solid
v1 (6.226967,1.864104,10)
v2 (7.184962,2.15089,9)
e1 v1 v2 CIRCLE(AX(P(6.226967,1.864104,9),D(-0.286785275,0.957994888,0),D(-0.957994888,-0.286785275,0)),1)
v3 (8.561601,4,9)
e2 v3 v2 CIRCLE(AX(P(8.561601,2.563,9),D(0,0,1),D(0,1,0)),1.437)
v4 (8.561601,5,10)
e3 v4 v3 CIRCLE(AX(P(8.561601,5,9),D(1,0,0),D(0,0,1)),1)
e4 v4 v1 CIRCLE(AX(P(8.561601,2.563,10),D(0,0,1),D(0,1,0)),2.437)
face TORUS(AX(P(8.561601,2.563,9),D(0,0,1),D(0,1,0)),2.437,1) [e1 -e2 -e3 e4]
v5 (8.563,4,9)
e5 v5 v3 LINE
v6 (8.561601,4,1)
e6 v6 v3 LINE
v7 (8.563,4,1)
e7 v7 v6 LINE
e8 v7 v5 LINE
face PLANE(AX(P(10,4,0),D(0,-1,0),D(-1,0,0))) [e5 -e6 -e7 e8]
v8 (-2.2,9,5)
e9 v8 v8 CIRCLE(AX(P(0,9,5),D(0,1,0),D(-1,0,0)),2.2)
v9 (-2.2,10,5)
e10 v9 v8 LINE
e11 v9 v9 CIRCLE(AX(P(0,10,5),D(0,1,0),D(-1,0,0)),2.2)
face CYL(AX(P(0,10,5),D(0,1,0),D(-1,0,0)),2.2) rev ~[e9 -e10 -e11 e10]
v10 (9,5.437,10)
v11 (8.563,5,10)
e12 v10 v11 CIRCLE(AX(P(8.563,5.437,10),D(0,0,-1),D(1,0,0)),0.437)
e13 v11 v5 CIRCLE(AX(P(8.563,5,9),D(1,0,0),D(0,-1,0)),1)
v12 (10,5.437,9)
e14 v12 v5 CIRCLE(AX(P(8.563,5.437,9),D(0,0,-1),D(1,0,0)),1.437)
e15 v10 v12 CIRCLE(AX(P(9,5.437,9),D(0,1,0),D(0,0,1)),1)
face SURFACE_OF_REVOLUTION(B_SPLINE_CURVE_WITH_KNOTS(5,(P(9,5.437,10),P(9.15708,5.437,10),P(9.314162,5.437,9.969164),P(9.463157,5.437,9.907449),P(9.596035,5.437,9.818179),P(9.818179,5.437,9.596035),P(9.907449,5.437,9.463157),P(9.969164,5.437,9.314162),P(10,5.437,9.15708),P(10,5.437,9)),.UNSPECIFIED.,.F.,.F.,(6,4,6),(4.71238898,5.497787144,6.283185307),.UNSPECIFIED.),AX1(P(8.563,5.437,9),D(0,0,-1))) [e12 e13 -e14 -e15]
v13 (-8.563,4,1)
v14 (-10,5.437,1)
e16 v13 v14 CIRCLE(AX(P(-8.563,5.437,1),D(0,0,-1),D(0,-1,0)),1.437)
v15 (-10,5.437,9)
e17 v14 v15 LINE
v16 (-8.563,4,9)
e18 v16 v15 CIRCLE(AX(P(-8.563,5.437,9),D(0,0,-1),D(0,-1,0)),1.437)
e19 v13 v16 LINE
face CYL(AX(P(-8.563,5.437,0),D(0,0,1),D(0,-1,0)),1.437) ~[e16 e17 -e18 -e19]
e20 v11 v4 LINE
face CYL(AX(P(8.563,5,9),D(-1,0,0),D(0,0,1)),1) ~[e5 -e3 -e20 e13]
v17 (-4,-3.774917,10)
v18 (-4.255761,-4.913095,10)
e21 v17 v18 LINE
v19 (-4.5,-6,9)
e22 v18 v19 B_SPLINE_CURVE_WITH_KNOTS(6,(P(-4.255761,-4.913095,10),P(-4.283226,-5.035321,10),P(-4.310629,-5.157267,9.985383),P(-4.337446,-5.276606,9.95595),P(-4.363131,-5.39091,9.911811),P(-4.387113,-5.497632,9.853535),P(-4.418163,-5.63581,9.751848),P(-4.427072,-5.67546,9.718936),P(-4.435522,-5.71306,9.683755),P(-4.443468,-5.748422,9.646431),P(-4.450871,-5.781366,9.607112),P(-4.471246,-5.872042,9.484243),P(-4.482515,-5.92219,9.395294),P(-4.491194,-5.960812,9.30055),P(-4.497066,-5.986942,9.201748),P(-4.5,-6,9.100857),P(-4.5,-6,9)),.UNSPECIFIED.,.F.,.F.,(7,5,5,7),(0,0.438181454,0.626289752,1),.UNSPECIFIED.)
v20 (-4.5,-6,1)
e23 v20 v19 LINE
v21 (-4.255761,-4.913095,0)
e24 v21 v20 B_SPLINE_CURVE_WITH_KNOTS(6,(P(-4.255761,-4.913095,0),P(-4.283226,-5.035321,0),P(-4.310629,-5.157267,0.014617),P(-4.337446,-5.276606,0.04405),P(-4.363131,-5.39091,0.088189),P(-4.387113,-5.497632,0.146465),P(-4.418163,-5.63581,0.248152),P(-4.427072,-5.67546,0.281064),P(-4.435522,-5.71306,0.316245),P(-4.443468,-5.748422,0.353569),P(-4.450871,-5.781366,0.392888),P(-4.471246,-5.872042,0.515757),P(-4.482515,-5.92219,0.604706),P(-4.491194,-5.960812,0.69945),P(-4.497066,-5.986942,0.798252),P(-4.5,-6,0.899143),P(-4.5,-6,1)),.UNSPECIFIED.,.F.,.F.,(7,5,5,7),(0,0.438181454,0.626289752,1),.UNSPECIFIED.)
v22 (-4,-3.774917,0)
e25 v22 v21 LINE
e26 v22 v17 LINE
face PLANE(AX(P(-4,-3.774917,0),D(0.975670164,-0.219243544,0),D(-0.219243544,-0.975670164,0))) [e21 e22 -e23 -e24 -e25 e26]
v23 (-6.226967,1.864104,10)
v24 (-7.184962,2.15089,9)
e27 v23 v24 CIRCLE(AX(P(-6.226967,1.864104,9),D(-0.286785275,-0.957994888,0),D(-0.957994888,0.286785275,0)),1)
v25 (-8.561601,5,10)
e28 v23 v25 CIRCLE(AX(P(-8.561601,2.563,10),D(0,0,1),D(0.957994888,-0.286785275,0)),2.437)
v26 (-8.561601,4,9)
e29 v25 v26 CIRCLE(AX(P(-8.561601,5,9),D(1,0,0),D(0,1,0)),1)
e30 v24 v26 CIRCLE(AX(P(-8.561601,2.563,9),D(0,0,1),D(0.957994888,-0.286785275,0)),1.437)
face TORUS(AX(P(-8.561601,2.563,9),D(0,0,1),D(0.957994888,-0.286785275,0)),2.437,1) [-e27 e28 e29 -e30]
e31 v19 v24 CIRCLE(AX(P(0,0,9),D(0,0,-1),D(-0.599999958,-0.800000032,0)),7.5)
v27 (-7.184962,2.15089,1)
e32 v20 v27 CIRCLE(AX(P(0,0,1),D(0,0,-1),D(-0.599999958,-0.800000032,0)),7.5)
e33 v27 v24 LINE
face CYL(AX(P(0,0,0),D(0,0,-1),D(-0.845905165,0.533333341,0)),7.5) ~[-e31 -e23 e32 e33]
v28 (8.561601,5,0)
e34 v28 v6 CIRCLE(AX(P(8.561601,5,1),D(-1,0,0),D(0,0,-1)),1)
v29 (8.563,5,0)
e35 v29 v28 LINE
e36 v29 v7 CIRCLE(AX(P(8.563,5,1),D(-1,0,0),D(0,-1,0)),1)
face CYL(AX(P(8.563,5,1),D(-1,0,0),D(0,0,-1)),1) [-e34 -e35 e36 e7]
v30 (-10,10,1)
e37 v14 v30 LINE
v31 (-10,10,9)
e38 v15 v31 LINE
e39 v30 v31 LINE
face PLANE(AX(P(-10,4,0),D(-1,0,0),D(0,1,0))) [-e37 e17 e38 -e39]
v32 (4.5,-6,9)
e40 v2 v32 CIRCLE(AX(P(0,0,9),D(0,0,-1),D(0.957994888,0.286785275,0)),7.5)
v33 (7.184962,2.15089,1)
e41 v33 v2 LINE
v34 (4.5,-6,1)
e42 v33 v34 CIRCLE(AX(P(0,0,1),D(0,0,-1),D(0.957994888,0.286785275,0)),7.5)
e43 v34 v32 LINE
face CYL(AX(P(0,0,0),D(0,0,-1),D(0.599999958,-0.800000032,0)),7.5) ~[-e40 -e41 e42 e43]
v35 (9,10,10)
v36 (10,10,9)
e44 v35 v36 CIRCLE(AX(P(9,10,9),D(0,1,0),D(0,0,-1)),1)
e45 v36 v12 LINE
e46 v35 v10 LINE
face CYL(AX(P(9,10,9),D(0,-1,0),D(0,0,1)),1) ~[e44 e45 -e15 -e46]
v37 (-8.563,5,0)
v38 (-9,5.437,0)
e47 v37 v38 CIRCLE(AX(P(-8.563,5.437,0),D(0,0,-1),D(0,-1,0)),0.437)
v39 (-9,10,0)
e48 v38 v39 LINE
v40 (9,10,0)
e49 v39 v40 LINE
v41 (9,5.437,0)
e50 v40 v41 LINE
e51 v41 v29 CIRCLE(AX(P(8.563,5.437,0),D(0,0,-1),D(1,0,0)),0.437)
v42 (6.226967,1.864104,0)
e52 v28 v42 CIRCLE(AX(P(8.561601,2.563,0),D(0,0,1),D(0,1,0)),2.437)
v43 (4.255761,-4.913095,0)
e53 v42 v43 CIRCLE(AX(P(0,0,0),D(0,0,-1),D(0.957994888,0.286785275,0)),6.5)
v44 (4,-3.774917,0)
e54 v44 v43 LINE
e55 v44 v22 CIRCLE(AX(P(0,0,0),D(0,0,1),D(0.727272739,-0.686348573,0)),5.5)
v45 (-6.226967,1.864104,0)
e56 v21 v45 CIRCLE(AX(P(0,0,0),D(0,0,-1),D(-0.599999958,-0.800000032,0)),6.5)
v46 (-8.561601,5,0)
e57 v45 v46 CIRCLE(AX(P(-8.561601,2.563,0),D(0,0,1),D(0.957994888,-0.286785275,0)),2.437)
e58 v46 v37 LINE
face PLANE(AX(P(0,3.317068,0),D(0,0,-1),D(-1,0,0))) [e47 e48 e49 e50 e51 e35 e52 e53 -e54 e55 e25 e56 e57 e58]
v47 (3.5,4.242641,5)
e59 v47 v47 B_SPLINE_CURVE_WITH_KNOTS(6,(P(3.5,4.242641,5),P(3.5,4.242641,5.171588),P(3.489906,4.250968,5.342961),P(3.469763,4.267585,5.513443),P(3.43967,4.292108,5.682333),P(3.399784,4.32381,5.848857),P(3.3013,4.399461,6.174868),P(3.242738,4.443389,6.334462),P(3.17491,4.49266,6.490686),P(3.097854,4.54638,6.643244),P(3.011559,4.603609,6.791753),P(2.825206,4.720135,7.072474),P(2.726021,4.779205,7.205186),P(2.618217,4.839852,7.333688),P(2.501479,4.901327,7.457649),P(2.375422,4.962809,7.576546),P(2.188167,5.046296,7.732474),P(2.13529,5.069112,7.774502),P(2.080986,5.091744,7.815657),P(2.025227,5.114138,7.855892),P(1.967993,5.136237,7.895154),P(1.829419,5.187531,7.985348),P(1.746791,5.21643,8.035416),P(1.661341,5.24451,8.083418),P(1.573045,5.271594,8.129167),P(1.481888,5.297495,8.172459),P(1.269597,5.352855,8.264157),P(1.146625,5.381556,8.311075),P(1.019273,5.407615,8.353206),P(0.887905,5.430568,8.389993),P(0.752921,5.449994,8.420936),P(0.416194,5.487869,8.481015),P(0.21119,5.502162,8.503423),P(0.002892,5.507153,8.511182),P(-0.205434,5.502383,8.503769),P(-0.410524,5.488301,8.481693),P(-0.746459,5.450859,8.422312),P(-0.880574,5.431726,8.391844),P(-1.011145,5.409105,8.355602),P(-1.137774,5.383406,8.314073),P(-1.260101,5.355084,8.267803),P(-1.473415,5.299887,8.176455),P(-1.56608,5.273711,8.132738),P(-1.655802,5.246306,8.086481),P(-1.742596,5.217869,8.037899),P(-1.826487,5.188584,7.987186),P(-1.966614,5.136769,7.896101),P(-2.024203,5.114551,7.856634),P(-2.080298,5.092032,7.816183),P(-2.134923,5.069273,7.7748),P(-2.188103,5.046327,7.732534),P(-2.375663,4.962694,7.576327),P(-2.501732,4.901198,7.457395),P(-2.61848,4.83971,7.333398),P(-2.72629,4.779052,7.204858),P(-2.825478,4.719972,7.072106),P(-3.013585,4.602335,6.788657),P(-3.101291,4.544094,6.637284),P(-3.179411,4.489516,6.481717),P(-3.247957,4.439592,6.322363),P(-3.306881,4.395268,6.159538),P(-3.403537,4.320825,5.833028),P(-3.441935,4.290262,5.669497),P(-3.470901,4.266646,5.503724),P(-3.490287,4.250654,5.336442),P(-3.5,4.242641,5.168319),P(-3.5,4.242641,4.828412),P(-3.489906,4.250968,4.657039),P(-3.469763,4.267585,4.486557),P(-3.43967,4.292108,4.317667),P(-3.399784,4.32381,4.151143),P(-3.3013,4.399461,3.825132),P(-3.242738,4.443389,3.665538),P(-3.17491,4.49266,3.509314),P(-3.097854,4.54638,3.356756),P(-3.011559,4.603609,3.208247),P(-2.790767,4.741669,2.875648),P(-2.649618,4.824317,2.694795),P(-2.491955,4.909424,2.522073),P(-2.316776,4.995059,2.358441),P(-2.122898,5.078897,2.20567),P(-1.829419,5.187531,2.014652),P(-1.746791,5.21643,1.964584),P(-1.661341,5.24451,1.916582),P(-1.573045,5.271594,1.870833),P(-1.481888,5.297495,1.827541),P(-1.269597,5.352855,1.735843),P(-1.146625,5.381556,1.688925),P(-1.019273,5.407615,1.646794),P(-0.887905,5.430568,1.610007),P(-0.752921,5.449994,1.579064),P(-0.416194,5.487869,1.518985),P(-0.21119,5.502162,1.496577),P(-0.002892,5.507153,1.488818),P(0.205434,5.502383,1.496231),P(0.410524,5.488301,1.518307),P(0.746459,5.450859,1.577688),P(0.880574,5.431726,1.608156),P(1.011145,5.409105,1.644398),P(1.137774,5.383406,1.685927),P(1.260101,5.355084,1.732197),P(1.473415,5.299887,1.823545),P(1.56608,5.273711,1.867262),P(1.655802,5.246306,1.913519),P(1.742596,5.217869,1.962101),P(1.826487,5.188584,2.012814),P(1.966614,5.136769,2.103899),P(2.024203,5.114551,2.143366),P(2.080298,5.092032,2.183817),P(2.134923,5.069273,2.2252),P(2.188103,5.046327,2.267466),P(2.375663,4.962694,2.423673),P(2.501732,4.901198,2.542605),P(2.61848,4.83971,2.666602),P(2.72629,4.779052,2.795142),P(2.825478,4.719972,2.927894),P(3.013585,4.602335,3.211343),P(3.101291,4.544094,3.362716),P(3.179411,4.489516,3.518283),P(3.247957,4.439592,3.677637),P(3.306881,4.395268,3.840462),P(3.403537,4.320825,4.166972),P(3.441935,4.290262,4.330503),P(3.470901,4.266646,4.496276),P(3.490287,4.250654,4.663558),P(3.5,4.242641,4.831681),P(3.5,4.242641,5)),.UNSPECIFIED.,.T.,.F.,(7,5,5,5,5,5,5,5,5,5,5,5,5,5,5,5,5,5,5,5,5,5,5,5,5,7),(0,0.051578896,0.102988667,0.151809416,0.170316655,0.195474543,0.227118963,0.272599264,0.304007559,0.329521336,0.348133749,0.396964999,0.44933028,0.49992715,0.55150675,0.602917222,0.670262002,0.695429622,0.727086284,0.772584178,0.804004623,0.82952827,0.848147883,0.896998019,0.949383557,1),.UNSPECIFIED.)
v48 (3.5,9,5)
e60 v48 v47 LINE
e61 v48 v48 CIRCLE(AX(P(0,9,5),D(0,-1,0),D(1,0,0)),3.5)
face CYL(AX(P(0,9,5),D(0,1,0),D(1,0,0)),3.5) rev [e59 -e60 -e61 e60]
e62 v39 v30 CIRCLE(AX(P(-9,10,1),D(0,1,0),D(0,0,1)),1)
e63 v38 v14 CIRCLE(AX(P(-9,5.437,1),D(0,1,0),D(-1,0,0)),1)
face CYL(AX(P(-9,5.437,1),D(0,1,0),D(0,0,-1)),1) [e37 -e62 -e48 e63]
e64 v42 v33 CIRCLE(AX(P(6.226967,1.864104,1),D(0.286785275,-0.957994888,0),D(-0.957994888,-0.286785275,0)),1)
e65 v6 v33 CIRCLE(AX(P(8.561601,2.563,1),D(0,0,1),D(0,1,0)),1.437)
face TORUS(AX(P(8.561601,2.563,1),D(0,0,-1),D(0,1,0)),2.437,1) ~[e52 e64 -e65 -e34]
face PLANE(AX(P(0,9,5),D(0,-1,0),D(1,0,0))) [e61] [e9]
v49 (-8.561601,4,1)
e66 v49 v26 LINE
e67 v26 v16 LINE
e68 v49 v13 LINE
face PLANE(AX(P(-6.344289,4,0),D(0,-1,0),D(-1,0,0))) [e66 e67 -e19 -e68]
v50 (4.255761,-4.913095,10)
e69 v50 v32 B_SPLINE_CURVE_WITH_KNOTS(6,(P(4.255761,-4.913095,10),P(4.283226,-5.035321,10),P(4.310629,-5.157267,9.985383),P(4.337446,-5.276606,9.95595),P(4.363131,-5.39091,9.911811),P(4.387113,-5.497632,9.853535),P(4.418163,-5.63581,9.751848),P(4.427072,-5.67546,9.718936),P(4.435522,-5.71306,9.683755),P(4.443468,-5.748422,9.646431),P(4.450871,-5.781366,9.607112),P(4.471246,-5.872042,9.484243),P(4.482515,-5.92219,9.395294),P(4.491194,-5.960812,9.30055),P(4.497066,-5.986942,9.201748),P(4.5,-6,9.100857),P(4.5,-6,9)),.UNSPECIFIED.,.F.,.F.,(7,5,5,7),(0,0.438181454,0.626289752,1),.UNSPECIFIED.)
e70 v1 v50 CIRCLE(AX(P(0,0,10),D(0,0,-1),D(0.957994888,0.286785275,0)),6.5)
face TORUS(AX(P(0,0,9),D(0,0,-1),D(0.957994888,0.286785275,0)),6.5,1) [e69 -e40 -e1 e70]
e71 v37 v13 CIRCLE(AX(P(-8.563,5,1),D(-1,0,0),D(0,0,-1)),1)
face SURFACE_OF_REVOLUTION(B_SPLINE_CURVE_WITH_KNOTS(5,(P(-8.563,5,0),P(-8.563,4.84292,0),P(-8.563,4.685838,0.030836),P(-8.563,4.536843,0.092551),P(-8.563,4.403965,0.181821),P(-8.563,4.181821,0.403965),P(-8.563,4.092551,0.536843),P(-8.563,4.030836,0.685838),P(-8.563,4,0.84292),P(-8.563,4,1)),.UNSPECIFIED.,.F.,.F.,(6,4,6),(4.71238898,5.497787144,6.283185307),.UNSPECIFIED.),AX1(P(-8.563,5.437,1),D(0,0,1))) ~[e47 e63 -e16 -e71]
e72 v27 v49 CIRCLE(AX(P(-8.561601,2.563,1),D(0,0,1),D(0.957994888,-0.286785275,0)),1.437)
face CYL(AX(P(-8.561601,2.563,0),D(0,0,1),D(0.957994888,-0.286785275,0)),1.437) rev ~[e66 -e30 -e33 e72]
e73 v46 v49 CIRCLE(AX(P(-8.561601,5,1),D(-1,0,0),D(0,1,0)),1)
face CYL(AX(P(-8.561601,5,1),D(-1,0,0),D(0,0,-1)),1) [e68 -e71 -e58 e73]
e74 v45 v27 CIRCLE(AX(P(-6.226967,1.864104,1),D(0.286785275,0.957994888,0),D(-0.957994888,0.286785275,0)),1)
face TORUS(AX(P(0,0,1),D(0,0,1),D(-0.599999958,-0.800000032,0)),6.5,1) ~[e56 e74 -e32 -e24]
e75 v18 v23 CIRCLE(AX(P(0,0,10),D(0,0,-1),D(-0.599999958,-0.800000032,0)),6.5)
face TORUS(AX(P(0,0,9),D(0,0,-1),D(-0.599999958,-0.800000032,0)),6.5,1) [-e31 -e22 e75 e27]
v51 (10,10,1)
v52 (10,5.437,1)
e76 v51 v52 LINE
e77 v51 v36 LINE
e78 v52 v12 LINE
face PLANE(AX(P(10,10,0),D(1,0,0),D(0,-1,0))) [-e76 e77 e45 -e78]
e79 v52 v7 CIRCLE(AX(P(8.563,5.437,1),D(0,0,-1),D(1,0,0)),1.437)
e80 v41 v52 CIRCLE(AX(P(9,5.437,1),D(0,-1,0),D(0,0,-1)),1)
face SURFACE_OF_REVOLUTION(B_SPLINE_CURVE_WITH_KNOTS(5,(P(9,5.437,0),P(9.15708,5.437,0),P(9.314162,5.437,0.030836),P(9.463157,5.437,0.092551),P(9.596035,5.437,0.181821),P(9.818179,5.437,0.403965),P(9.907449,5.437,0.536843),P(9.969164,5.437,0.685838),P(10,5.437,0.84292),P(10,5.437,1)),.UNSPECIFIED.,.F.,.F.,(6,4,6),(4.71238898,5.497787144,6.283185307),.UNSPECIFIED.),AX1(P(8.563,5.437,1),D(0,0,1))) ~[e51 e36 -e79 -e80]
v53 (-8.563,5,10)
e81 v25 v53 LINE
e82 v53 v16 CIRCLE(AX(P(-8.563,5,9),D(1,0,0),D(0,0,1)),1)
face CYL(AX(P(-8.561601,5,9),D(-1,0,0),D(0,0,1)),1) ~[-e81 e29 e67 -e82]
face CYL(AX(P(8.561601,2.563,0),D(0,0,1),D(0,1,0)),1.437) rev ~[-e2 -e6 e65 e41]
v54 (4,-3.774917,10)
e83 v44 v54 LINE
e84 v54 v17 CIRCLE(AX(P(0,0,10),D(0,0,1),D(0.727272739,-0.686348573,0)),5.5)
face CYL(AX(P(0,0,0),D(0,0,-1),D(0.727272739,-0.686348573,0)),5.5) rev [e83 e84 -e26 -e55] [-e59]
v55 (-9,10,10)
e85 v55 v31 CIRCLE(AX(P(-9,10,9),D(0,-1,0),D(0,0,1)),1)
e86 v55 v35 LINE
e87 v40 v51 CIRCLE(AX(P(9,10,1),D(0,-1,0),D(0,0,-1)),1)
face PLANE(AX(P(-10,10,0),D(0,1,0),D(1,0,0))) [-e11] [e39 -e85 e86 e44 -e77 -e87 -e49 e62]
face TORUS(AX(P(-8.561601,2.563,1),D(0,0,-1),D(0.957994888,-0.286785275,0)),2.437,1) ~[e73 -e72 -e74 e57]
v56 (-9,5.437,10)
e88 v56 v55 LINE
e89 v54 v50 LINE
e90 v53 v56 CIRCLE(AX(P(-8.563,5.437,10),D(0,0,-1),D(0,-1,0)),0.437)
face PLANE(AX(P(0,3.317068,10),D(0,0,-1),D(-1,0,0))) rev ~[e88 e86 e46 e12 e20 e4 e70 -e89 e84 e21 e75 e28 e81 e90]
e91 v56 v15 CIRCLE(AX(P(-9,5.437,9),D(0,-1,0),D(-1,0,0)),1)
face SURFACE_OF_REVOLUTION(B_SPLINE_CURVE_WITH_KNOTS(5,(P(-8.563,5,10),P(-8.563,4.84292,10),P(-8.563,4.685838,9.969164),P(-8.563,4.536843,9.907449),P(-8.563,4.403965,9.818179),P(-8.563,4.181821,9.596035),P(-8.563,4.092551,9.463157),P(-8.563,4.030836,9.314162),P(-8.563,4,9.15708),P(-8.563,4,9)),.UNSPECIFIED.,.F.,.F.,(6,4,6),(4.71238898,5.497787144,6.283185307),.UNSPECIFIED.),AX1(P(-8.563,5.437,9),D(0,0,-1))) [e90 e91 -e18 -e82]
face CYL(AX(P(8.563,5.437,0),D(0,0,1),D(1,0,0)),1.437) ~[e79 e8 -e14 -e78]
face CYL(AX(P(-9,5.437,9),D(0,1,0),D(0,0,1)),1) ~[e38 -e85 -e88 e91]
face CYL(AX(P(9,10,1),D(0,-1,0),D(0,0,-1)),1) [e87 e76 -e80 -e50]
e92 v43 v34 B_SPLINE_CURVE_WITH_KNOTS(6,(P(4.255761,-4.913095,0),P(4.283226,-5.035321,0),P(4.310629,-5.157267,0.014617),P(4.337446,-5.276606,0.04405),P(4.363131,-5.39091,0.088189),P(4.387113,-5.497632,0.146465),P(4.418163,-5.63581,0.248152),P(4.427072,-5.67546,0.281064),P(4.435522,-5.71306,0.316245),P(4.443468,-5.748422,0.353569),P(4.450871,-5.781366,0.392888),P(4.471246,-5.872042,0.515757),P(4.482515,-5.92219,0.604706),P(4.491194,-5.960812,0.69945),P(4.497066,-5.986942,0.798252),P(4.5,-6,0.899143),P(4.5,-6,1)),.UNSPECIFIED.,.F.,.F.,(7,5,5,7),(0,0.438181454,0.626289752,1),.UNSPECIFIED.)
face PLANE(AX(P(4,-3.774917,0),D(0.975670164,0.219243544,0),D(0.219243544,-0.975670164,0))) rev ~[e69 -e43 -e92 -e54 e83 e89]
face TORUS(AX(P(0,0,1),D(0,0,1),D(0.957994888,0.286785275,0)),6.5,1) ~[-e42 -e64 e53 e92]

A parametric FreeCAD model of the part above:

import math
import FreeCAD as App
import Part
import Sketcher

V = App.Vector


def edges_at(feature, points):
    """Names of the edges that pass closest to the given points."""
    edges = feature.Shape.Edges
    near = lambda p: min(range(len(edges)), key=lambda i: edges[i].distToShape(Part.Vertex(*p))[0])
    return sorted({f"Edge{near(p) + 1}" for p in points})

doc = App.newDocument("Part")
params = doc.addObject("Spreadsheet::Sheet", "Params")
for row, (alias, value) in enumerate([
    ("sketch1_diameter", "7 mm"),
    ("pad1_length", "5 mm"),
    ("sketch2_radius", "5.5 mm"),
    ("sketch2_radius2", "7.5 mm"),
    ("sketch2_width", "20 mm"),
    ("sketch2_height", "6 mm"),
    ("pad2_length", "10 mm"),
    ("fillet_radius", "1.437 mm"),
    ("sketch3_diameter", "4.4 mm"),
    ("pocket1_length", "5 mm"),
    ("fillet2_radius", "1 mm"),
], start=1):
    params.set(f"A{row}", alias)
    params.set(f"B{row}", "=" + value)
    params.setAlias(f"B{row}", alias)

body = doc.addObject("PartDesign::Body", "Body")

# Sketch on XY plane
sketch1 = doc.addObject("Sketcher::SketchObject", "Sketch")
body.addObject(sketch1)
sketch1.AttachmentSupport = (doc.XY_Plane, [""])
sketch1.MapMode = "FlatFace"
sketch1.addGeometry(Part.Circle(V(0, 0, 0), V(0, 0, 1), 3.5), False)
sketch1.addConstraint([
    Sketcher.Constraint("Coincident", 0, 3, -1, 1),
    Sketcher.Constraint("Diameter", 0, 7.0),
])
sketch1.setExpression("Constraints[1]", "Params.sketch1_diameter")
pad1 = doc.addObject("PartDesign::Pad", "Pad")
body.addObject(pad1)
pad1.Profile = sketch1
pad1.setExpression("Length", "Params.pad1_length")
body2 = doc.addObject("PartDesign::Body", "Body001")
doc.recompute()

body.Placement = App.Placement(V(0, 0, 0), App.Rotation(V(1, 0, 0), 90))
boolean = doc.addObject("PartDesign::Boolean", "Boolean")
body2.addObject(boolean)
boolean.Type = "Fuse"
boolean.addObjects([body])
body3 = doc.addObject("PartDesign::Body", "Body002")
doc.recompute()

body2.Placement = App.Placement(V(0, 9, 5), App.Rotation(V(0, 0, 1), 0))
boolean2 = doc.addObject("PartDesign::Boolean", "Boolean001")
body3.addObject(boolean2)
boolean2.Type = "Fuse"
boolean2.addObjects([body2])
body4 = doc.addObject("PartDesign::Body", "Body003")

# Sketch on XY plane
sketch2 = doc.addObject("Sketcher::SketchObject", "Sketch001")
body4.addObject(sketch2)
sketch2.AttachmentSupport = (doc.getObject("XY_Plane003"), [""])
sketch2.MapMode = "FlatFace"
sketch2.addGeometry([
    Part.ArcOfCircle(Part.Circle(V(0, 0, 0), V(0, 0, 1), 5.5), math.radians(-43), math.radians(223)),  # 0
    Part.LineSegment(V(4, -3.8, 0), V(4.5, -6, 0)),  # 1
    Part.ArcOfCircle(Part.Circle(V(0, 0, 0), V(0, 0, 1), 7.5), math.radians(-53), math.radians(32)),  # 2
    Part.LineSegment(V(6.3, 4, 0), V(10, 4, 0)),  # 3
    Part.LineSegment(V(10, 4, 0), V(10, 10, 0)),  # 4
    Part.LineSegment(V(10, 10, 0), V(-10, 10, 0)),  # 5
    Part.LineSegment(V(-10, 10, 0), V(-10, 4, 0)),  # 6
    Part.LineSegment(V(-10, 4, 0), V(-6.3, 4, 0)),  # 7
    Part.ArcOfCircle(Part.Circle(V(0, 0, 0), V(0, 0, 1), 7.5), math.radians(148), math.radians(233)),  # 8
    Part.LineSegment(V(-4.5, -6, 0), V(-4, -3.8, 0)),  # 9
], False)
sketch2.addConstraint([
    Sketcher.Constraint("Coincident", 0, 1, 1, 1),
    Sketcher.Constraint("Coincident", 1, 2, 2, 1),
    Sketcher.Constraint("Coincident", 2, 2, 3, 1),
    Sketcher.Constraint("Coincident", 3, 2, 4, 1),
    Sketcher.Constraint("Coincident", 4, 2, 5, 1),
    Sketcher.Constraint("Coincident", 5, 2, 6, 1),
    Sketcher.Constraint("Coincident", 6, 2, 7, 1),
    Sketcher.Constraint("Coincident", 7, 2, 8, 1),
    Sketcher.Constraint("Coincident", 8, 2, 9, 1),
    Sketcher.Constraint("Coincident", 9, 2, 0, 2),
    Sketcher.Constraint("Horizontal", 3),
    Sketcher.Constraint("Vertical", 4),
    Sketcher.Constraint("Horizontal", 5),
    Sketcher.Constraint("Vertical", 6),
    Sketcher.Constraint("Horizontal", 7),
    Sketcher.Constraint("Coincident", 0, 3, -1, 1),
    Sketcher.Constraint("Coincident", 2, 3, -1, 1),
    Sketcher.Constraint("Coincident", 8, 3, -1, 1),
    Sketcher.Constraint("Equal", 2, 8),
    Sketcher.Constraint("Symmetric", 3, 2, 6, 2, -2),
    Sketcher.Constraint("Horizontal", 1, 2, 8, 2),
    Sketcher.Constraint("Horizontal", 0, 1, 9, 2),
    Sketcher.Constraint("Radius", 0, 5.5),
    Sketcher.Constraint("Radius", 2, 7.5),
    Sketcher.Constraint("DistanceX", 5, 2, 5, 1, 20.0),
    Sketcher.Constraint("DistanceY", 4, 1, 4, 2, 6.0),
    Sketcher.Constraint("DistanceX", -1, 1, 0, 1, 4.0),
    Sketcher.Constraint("DistanceY", 1, 2, -1, 1, 6.0),
    Sketcher.Constraint("DistanceY", -1, 1, 2, 2, 4.0),
])
sketch2.setExpression("Constraints[22]", "Params.sketch2_radius")
sketch2.setExpression("Constraints[23]", "Params.sketch2_radius2")
sketch2.setExpression("Constraints[24]", "Params.sketch2_width")
sketch2.setExpression("Constraints[25]", "Params.sketch2_height")
pad2 = doc.addObject("PartDesign::Pad", "Pad001")
body4.addObject(pad2)
pad2.Profile = sketch2
pad2.setExpression("Length", "Params.pad2_length")
doc.recompute()

fillet = doc.addObject("PartDesign::Fillet", "Fillet")
body4.addObject(fillet)
fillet.Base = (pad2, edges_at(pad2, [
    (-6.344, 4, 5),
    (-10, 4, 5),
    (10, 4, 5),
    (6.344, 4, 5),
]))
fillet.setExpression("Radius", "Params.fillet_radius")

# Sketch on XZ plane
sketch3 = doc.addObject("Sketcher::SketchObject", "Sketch002")
body4.addObject(sketch3)
sketch3.AttachmentSupport = (doc.getObject("XZ_Plane003"), [""])
sketch3.MapMode = "FlatFace"
sketch3.AttachmentOffset = App.Placement(V(0, 0, -10), App.Rotation())
sketch3.addGeometry(Part.Circle(V(0, 5, 0), V(0, 0, 1), 2.2), False)
sketch3.addConstraint([
    Sketcher.Constraint("PointOnObject", 0, 3, -2),
    Sketcher.Constraint("Diameter", 0, 4.4),
    Sketcher.Constraint("DistanceY", -1, 1, 0, 3, 5.0),
])
sketch3.setExpression("Constraints[1]", "Params.sketch3_diameter")
pocket1 = doc.addObject("PartDesign::Pocket", "Pocket")
body4.addObject(pocket1)
pocket1.Profile = sketch3
pocket1.setExpression("Length", "Params.pocket1_length")
pocket1.Reversed = True
doc.recompute()

boolean3 = doc.addObject("PartDesign::Boolean", "Boolean002")
body4.addObject(boolean3)
boolean3.Type = "Cut"
boolean3.addObjects([body3])
doc.recompute()

fillet2 = doc.addObject("PartDesign::Fillet", "Fillet001")
body4.addObject(fillet2)
fillet2.Base = (boolean3, edges_at(boolean3, [
    (10, 7.718, 10),
    (10, 7.718, 0),
    (-10, 7.718, 0),
    (-10, 7.718, 10),
]))
fillet2.setExpression("Radius", "Params.fillet2_radius")

doc.recompute()
